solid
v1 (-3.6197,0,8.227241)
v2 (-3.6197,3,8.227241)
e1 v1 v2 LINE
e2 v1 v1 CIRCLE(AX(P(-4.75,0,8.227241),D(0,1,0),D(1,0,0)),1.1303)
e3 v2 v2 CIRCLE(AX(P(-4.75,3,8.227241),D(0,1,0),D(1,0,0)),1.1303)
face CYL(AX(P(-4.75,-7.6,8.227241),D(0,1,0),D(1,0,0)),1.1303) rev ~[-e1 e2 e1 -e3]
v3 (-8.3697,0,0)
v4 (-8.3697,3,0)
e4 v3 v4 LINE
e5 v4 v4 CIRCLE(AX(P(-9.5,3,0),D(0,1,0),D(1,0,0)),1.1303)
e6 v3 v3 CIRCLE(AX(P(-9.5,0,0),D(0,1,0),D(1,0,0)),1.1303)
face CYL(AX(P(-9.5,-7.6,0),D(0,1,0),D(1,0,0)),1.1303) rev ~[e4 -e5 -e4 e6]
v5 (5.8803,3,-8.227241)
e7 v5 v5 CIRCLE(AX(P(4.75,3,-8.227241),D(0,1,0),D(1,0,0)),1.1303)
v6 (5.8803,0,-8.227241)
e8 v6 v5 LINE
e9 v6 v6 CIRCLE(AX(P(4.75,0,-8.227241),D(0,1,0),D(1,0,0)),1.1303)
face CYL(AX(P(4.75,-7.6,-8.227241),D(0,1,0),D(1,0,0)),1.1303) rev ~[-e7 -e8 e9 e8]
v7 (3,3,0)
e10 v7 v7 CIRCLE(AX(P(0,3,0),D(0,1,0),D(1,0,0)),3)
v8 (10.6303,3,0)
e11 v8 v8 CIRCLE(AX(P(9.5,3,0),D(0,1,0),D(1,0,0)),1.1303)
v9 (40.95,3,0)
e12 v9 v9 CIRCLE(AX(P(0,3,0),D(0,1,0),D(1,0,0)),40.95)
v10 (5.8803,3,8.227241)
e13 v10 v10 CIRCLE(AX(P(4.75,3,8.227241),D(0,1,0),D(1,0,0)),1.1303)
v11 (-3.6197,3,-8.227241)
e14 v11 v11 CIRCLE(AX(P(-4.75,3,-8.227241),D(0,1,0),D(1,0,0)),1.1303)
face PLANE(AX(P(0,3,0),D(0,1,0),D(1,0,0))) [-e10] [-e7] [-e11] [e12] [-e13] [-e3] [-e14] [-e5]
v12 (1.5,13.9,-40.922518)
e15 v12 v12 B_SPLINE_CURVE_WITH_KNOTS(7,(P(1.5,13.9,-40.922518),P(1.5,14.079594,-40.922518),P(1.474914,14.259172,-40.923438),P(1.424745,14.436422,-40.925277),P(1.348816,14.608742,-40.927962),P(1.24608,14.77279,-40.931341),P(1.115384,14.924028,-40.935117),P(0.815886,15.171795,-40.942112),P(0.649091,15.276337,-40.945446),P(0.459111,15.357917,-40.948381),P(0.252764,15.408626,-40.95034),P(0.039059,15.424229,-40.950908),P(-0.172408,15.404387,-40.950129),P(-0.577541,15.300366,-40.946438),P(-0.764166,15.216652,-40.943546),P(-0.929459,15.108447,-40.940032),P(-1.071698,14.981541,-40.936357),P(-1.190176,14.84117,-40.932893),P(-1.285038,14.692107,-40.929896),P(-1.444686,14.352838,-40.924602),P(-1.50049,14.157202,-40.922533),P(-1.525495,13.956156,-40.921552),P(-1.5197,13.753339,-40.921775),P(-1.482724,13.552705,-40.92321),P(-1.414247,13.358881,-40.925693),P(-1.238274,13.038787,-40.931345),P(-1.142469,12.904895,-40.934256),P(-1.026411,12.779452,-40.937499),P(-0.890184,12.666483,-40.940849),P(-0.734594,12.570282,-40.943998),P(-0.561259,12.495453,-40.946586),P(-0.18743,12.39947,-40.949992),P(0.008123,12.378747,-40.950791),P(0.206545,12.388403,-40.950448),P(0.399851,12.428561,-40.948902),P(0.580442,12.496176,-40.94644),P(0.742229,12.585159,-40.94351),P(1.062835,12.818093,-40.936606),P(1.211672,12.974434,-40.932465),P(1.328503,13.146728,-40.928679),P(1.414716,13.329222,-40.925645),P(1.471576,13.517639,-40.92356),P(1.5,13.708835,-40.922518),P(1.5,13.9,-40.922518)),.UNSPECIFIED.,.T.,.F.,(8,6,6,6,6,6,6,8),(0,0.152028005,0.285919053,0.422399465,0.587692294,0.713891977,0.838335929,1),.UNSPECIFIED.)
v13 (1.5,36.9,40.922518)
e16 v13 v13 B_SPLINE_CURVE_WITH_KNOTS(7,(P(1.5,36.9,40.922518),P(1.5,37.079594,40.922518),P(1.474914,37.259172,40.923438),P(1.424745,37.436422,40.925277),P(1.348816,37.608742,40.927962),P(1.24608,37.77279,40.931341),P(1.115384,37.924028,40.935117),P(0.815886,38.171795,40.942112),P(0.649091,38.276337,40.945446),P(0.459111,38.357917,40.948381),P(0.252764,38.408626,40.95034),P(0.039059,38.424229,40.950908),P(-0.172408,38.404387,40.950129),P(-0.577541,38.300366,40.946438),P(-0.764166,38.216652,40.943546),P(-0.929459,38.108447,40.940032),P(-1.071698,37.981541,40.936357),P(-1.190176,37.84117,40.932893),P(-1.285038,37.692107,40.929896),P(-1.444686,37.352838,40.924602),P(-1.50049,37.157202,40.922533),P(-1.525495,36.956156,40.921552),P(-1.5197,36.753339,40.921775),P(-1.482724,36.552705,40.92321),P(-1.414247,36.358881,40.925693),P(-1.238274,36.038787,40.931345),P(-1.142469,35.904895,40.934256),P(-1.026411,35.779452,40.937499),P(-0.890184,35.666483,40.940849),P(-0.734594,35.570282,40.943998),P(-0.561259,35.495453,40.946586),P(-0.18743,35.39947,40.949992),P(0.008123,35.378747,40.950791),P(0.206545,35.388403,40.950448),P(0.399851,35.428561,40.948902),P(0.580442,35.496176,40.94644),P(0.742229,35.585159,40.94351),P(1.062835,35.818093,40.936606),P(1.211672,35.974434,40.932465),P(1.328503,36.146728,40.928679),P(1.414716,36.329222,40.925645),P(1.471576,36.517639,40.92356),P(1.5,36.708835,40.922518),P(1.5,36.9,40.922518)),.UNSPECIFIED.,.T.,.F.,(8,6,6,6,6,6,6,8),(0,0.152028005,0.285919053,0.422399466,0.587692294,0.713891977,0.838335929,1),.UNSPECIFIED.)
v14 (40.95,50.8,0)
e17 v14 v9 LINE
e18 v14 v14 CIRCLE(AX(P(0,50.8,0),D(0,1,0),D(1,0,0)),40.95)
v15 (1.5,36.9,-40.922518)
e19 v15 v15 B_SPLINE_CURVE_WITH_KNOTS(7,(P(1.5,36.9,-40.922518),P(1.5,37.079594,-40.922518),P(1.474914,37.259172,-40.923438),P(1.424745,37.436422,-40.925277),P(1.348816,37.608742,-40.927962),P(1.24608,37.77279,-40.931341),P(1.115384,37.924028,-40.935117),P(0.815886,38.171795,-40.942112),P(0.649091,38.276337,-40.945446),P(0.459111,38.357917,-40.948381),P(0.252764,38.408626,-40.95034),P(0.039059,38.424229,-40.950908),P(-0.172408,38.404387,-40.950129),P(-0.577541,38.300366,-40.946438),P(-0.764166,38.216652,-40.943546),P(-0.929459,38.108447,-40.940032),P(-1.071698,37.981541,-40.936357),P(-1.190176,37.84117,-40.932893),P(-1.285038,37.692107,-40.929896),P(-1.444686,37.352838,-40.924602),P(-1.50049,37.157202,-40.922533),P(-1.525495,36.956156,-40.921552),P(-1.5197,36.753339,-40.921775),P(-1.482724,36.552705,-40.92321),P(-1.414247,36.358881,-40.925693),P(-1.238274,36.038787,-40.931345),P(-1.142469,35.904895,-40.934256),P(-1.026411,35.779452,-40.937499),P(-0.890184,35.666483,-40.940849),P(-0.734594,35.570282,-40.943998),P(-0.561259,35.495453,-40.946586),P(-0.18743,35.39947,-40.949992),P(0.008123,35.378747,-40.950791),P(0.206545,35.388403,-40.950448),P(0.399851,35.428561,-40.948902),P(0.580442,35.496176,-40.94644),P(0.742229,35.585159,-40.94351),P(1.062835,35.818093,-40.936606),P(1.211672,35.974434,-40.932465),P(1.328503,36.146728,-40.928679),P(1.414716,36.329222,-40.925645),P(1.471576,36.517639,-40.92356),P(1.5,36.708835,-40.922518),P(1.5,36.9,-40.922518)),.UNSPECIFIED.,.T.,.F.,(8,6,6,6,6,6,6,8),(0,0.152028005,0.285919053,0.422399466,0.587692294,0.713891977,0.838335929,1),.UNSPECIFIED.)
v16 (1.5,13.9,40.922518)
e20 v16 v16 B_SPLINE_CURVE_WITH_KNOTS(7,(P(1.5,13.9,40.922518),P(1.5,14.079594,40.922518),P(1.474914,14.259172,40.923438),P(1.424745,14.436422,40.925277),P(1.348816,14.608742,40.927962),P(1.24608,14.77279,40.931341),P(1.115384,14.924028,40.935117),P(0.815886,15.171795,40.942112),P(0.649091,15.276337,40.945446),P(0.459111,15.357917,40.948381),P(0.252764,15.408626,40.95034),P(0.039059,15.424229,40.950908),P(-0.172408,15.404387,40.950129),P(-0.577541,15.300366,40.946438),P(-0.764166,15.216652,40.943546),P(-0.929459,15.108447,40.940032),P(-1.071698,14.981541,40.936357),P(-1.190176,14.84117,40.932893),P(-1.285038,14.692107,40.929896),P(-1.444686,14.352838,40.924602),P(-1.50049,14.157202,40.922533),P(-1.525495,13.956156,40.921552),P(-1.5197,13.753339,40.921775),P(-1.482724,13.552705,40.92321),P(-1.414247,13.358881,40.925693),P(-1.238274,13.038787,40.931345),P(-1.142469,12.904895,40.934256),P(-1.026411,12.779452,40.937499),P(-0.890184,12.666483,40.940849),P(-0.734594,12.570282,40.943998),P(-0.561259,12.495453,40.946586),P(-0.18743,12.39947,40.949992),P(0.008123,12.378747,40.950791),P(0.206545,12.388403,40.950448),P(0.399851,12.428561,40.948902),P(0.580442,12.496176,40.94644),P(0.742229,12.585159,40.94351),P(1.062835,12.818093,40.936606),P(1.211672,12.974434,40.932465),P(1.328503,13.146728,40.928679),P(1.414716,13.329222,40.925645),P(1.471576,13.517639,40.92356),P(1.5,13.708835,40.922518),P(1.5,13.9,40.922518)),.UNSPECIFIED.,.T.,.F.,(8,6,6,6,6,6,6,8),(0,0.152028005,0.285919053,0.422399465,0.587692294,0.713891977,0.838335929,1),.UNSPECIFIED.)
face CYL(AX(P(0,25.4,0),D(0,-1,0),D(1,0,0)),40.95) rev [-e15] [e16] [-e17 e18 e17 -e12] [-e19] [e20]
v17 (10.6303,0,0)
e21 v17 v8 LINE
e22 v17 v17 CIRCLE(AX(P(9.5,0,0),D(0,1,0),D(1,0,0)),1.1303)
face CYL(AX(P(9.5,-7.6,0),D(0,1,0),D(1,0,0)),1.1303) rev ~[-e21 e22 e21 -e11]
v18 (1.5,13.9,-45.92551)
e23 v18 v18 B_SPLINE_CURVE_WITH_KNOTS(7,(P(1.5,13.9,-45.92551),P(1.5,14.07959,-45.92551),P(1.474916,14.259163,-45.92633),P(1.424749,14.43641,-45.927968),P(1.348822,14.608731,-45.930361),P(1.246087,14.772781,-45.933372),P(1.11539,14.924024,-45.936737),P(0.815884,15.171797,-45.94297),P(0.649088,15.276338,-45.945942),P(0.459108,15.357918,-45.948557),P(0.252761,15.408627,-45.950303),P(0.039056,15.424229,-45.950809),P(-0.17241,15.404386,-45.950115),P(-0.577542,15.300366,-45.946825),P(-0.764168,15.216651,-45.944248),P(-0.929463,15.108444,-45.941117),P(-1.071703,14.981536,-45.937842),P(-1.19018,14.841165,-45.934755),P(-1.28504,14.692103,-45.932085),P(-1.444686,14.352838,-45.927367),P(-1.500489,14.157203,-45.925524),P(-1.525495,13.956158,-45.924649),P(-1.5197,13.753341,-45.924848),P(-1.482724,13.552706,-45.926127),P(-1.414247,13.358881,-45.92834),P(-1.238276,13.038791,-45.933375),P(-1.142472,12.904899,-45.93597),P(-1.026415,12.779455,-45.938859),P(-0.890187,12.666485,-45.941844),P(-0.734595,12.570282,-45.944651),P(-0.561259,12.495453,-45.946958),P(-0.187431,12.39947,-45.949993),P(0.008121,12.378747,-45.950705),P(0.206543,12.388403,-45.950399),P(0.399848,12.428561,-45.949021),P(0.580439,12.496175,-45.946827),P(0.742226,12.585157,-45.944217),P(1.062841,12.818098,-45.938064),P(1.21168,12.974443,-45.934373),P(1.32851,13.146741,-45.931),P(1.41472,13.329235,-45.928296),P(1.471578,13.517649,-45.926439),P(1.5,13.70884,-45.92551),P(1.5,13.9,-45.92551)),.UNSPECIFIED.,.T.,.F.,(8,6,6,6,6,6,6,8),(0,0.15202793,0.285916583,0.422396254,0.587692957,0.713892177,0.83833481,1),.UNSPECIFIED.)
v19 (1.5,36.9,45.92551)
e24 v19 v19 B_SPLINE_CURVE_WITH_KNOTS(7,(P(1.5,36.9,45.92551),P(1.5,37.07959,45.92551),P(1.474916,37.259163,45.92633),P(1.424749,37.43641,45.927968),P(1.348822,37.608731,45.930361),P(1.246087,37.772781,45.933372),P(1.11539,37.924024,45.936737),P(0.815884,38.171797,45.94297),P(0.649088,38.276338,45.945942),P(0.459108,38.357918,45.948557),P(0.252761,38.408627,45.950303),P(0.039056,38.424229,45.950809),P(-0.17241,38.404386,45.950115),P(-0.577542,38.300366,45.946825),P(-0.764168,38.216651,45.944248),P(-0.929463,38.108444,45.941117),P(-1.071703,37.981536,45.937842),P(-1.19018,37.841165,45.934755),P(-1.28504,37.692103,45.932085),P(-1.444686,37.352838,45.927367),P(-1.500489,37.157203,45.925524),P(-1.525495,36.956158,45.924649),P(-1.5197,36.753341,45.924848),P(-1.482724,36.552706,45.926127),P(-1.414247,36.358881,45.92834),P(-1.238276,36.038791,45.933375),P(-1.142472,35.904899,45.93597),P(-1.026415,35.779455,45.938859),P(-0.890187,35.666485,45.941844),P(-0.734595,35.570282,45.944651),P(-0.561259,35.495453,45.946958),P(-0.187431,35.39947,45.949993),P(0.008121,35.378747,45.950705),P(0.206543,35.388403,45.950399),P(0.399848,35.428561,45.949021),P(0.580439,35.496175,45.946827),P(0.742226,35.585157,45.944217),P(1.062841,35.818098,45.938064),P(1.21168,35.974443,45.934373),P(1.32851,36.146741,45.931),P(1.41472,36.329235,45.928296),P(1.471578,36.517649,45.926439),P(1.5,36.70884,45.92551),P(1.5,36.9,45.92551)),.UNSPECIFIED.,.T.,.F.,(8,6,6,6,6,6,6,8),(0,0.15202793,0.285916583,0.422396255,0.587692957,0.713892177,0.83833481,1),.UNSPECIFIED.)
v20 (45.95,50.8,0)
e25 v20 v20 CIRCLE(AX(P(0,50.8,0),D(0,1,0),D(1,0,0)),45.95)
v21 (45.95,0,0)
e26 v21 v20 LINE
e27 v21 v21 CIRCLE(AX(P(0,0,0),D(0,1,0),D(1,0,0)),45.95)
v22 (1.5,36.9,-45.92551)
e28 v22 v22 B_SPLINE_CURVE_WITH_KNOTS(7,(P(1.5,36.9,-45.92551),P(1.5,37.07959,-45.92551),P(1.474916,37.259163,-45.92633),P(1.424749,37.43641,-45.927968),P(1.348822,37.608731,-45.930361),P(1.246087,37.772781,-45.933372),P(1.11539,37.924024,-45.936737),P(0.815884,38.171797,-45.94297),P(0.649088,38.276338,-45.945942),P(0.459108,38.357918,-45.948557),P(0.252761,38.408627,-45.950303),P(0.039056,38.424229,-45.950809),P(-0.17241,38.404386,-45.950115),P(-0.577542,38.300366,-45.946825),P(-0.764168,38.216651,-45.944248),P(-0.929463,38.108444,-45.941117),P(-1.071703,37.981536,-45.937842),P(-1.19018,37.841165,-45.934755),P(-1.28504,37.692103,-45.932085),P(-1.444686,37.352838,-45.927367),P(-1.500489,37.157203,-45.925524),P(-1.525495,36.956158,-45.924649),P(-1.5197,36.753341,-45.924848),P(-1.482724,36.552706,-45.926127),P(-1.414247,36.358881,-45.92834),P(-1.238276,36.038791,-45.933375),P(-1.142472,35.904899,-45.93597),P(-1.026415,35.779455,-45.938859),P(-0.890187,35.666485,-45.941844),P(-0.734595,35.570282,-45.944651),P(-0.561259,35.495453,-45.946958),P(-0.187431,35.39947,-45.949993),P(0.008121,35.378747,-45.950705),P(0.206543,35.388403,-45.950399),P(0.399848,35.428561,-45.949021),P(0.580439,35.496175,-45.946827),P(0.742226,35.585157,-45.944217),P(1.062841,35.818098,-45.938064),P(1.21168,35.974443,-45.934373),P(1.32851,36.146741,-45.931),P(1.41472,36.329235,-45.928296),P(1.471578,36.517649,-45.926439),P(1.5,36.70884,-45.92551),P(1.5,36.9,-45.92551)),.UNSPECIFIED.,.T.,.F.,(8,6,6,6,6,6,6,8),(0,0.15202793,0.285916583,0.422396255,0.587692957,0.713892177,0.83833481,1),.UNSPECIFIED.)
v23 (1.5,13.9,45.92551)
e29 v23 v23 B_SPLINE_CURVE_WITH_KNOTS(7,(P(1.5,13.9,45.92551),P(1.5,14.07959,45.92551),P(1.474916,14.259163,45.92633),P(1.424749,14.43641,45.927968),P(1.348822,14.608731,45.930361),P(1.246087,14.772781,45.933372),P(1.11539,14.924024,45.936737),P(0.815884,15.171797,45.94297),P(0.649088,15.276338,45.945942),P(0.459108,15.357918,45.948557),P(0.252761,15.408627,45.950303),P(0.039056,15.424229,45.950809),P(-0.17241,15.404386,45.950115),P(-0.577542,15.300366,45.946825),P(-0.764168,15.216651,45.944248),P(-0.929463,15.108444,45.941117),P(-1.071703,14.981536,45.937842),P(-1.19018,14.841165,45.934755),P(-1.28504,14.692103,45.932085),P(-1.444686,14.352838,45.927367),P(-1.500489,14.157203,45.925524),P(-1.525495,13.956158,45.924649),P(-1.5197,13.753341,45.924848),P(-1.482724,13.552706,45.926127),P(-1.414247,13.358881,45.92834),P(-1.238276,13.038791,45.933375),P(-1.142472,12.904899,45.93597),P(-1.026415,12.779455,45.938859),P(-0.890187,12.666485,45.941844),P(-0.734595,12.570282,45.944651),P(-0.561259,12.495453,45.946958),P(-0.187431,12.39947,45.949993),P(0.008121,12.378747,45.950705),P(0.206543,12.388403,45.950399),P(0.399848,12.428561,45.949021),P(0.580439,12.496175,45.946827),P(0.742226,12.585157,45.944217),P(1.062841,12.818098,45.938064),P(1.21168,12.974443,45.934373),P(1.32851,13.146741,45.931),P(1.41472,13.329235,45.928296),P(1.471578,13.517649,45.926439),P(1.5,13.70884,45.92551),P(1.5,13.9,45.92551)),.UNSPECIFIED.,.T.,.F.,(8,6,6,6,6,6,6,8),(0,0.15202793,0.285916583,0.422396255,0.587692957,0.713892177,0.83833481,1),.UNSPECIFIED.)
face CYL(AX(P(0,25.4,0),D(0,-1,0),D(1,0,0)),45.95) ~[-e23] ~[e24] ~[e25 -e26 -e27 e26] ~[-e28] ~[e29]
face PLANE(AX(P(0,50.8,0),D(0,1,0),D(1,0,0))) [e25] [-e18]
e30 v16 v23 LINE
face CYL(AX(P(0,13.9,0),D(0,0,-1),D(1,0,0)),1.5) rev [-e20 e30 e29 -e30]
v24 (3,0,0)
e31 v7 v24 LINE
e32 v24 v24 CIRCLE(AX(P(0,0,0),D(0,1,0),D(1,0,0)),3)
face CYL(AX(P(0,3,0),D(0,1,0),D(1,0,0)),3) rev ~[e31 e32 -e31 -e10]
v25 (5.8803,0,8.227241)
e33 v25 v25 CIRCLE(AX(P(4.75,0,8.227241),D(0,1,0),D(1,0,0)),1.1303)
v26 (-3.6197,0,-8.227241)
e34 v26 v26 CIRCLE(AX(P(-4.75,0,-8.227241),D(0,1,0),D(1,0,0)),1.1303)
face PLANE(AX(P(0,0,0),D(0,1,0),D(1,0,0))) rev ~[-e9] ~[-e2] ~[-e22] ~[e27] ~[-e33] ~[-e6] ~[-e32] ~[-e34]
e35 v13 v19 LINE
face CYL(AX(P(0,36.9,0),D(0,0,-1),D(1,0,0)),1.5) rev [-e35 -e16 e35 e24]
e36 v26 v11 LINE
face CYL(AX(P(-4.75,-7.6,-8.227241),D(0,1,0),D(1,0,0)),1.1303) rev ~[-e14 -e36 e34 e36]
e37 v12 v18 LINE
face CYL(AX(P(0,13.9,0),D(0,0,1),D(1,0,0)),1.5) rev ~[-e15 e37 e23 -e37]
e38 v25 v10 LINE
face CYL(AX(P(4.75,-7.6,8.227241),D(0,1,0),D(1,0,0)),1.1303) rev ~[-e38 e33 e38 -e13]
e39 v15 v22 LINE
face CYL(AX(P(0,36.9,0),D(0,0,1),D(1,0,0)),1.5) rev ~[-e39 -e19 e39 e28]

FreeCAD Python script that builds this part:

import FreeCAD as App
import Part
import Sketcher
Q = App.Units.Quantity

doc = App.newDocument("Part")
params = doc.addObject("Spreadsheet::Sheet", "Params")
for row, (alias, value) in enumerate([
    ("sketch1_diameter", "91.9 mm"),
    ("pad1_length", "3 mm"),
    ("sketch2_diameter", "91.9 mm"),
    ("sketch2_diameter2", "81.9 mm"),
    ("pad2_length", "22.4 mm"),
    ("hole_diameter", "2.2606 mm"),
    ("hole_depth", "7.6 mm"),
    ("sketch4_diameter", "3 mm"),
    ("sketch5_diameter", "91.9 mm"),
    ("sketch5_diameter2", "81.9 mm"),
    ("pad3_length", "25.4 mm"),
    ("sketch6_diameter", "3 mm"),
    ("sketch7_diameter", "6 mm"),
    ("pocket3_length", "10 mm"),
], start=1):
    params.set(f"A{row}", alias)
    params.set(f"B{row}", "=" + value)
    params.setAlias(f"B{row}", alias)

body = doc.addObject("PartDesign::Body", "Body")

sketch1 = body.newObject("Sketcher::SketchObject", "Sketch")
sketch1.AttachmentSupport = (doc.getObject("XZ_Plane"), [""])
sketch1.MapMode = "FlatFace"
sketch1.addGeometry(Part.Circle(App.Vector(0, 0, 0), App.Vector(0, 0, 1), 46), False)
sketch1.addConstraint([
    Sketcher.Constraint("Coincident", 0, 3, -1, 1),
    Sketcher.Constraint("Diameter", 0, Q("91.9 mm")),
])
sketch1.setExpression("Constraints[1]", "Params.sketch1_diameter")
pad1 = body.newObject("PartDesign::Pad", "Pad")
pad1.Profile = sketch1
pad1.setExpression("Length", "Params.pad1_length")
pad1.Reversed = True

sketch2 = body.newObject("Sketcher::SketchObject", "Sketch001")
sketch2.AttachmentSupport = (doc.getObject("XZ_Plane"), [""])
sketch2.MapMode = "FlatFace"
sketch2.AttachmentOffset = App.Placement(App.Vector(0, 0, -3), App.Rotation())
sketch2.addGeometry([
    Part.Circle(App.Vector(0, 0, 0), App.Vector(0, 0, 1), 46),
    Part.Circle(App.Vector(0, 0, 0), App.Vector(0, 0, 1), 41),
], False)
sketch2.addConstraint([
    Sketcher.Constraint("Coincident", 0, 3, -1, 1),
    Sketcher.Constraint("Coincident", 1, 3, -1, 1),
    Sketcher.Constraint("Diameter", 0, Q("91.9 mm")),
    Sketcher.Constraint("Diameter", 1, Q("81.9 mm")),
])
sketch2.setExpression("Constraints[2]", "Params.sketch2_diameter")
sketch2.setExpression("Constraints[3]", "Params.sketch2_diameter2")
pad2 = body.newObject("PartDesign::Pad", "Pad001")
pad2.Profile = sketch2
pad2.setExpression("Length", "Params.pad2_length")
pad2.Reversed = True

sketch3 = body.newObject("Sketcher::SketchObject", "Sketch002")
sketch3.AttachmentSupport = (doc.getObject("XZ_Plane"), [""])
sketch3.MapMode = "FlatFace"
sketch3.addGeometry([
    Part.Circle(App.Vector(-9.5, 0, 0), App.Vector(0, 0, 1), 1.1),
    Part.Circle(App.Vector(-4.8, 8.2, 0), App.Vector(0, 0, 1), 1.1),
    Part.Circle(App.Vector(4.8, 8.2, 0), App.Vector(0, 0, 1), 1.1),
    Part.Circle(App.Vector(9.5, 0, 0), App.Vector(0, 0, 1), 1.1),
    Part.Circle(App.Vector(4.8, -8.2, 0), App.Vector(0, 0, 1), 1.1),
    Part.Circle(App.Vector(-4.8, -8.2, 0), App.Vector(0, 0, 1), 1.1),
], False)
sketch3.addConstraint([
    Sketcher.Constraint("Equal", 0, 1),
    Sketcher.Constraint("Equal", 1, 2),
    Sketcher.Constraint("Equal", 2, 3),
    Sketcher.Constraint("Equal", 3, 4),
    Sketcher.Constraint("Equal", 4, 5),
    Sketcher.Constraint("Symmetric", 0, 3, 3, 3, -1, 1),
    Sketcher.Constraint("Symmetric", 1, 3, 4, 3, -1, 1),
    Sketcher.Constraint("Symmetric", 2, 3, 5, 3, -1, 1),
    Sketcher.Constraint("Symmetric", 1, 3, 2, 3, -2),
    Sketcher.Constraint("PointOnObject", 0, 3, -1),
    Sketcher.Constraint("DistanceX", 0, 3, 3, 3, Q("19 mm")),
    Sketcher.Constraint("Diameter", 0, Q("2.2606 mm")),
    Sketcher.Constraint("DistanceX", 1, 3, 2, 3, Q("9.5 mm")),
    Sketcher.Constraint("DistanceY", -1, 1, 1, 3, Q("8.227241 mm")),
])
doc.recompute()
hole = body.newObject("PartDesign::Hole", "Hole")
hole.Profile = sketch3
hole.ThreadType = "None"
hole.setExpression("Diameter", "Params.hole_diameter")
hole.DepthType = "Dimension"
hole.setExpression("Depth", "Params.hole_depth")
hole.DrillPoint = "Angled"
hole.DrillPointAngle = 118

sketch4 = body.newObject("Sketcher::SketchObject", "Sketch003")
sketch4.AttachmentSupport = (doc.getObject("XY_Plane"), [""])
sketch4.MapMode = "FlatFace"
sketch4.addGeometry([
    Part.Circle(App.Vector(0, 13.9, 0), App.Vector(0, 0, 1), 1.5),
    Part.Circle(App.Vector(0, -13.9, 0), App.Vector(0, 0, 1), 1.5),
], False)
sketch4.addConstraint([
    Sketcher.Constraint("Equal", 0, 1),
    Sketcher.Constraint("Symmetric", 0, 3, 1, 3, -1, 1),
    Sketcher.Constraint("PointOnObject", 0, 3, -2),
    Sketcher.Constraint("Diameter", 0, Q("3 mm")),
    Sketcher.Constraint("DistanceY", -1, 1, 0, 3, Q("13.9 mm")),
])
sketch4.setExpression("Constraints[3]", "Params.sketch4_diameter")
pocket1 = body.newObject("PartDesign::Pocket", "Pocket")
pocket1.Profile = sketch4
pocket1.Type = "ThroughAll"
pocket1.Midplane = True

sketch5 = body.newObject("Sketcher::SketchObject", "Sketch004")
sketch5.AttachmentSupport = (doc.getObject("XZ_Plane"), [""])
sketch5.MapMode = "FlatFace"
sketch5.AttachmentOffset = App.Placement(App.Vector(0, 0, -25.4), App.Rotation())
sketch5.addGeometry([
    Part.Circle(App.Vector(0, 0, 0), App.Vector(0, 0, 1), 46),
    Part.Circle(App.Vector(0, 0, 0), App.Vector(0, 0, 1), 41),
], False)
sketch5.addConstraint([
    Sketcher.Constraint("Coincident", 0, 3, -1, 1),
    Sketcher.Constraint("Coincident", 1, 3, -1, 1),
    Sketcher.Constraint("Diameter", 0, Q("91.9 mm")),
    Sketcher.Constraint("Diameter", 1, Q("81.9 mm")),
])
sketch5.setExpression("Constraints[2]", "Params.sketch5_diameter")
sketch5.setExpression("Constraints[3]", "Params.sketch5_diameter2")
pad3 = body.newObject("PartDesign::Pad", "Pad002")
pad3.Profile = sketch5
pad3.setExpression("Length", "Params.pad3_length")
pad3.Reversed = True

sketch6 = body.newObject("Sketcher::SketchObject", "Sketch005")
sketch6.AttachmentSupport = (doc.getObject("XY_Plane"), [""])
sketch6.MapMode = "FlatFace"
sketch6.addGeometry(Part.Circle(App.Vector(0, 36.9, 0), App.Vector(0, 0, 1), 1.5), False)
sketch6.addConstraint([
    Sketcher.Constraint("PointOnObject", 0, 3, -2),
    Sketcher.Constraint("Diameter", 0, Q("3 mm")),
    Sketcher.Constraint("DistanceY", -1, 1, 0, 3, Q("36.9 mm")),
])
sketch6.setExpression("Constraints[1]", "Params.sketch6_diameter")
pocket2 = body.newObject("PartDesign::Pocket", "Pocket001")
pocket2.Profile = sketch6
pocket2.Type = "ThroughAll"
pocket2.Midplane = True

sketch7 = body.newObject("Sketcher::SketchObject", "Sketch006")
sketch7.AttachmentSupport = (doc.getObject("XZ_Plane"), [""])
sketch7.MapMode = "FlatFace"
sketch7.AttachmentOffset = App.Placement(App.Vector(0, 0, -3), App.Rotation())
sketch7.addGeometry(Part.Circle(App.Vector(0, 0, 0), App.Vector(0, 0, 1), 3), False)
sketch7.addConstraint([
    Sketcher.Constraint("Coincident", 0, 3, -1, 1),
    Sketcher.Constraint("Diameter", 0, Q("6 mm")),
])
sketch7.setExpression("Constraints[1]", "Params.sketch7_diameter")
pocket3 = body.newObject("PartDesign::Pocket", "Pocket002")
pocket3.Profile = sketch7
pocket3.setExpression("Length", "Params.pocket3_length")
pocket3.Reversed = True

doc.recompute()
